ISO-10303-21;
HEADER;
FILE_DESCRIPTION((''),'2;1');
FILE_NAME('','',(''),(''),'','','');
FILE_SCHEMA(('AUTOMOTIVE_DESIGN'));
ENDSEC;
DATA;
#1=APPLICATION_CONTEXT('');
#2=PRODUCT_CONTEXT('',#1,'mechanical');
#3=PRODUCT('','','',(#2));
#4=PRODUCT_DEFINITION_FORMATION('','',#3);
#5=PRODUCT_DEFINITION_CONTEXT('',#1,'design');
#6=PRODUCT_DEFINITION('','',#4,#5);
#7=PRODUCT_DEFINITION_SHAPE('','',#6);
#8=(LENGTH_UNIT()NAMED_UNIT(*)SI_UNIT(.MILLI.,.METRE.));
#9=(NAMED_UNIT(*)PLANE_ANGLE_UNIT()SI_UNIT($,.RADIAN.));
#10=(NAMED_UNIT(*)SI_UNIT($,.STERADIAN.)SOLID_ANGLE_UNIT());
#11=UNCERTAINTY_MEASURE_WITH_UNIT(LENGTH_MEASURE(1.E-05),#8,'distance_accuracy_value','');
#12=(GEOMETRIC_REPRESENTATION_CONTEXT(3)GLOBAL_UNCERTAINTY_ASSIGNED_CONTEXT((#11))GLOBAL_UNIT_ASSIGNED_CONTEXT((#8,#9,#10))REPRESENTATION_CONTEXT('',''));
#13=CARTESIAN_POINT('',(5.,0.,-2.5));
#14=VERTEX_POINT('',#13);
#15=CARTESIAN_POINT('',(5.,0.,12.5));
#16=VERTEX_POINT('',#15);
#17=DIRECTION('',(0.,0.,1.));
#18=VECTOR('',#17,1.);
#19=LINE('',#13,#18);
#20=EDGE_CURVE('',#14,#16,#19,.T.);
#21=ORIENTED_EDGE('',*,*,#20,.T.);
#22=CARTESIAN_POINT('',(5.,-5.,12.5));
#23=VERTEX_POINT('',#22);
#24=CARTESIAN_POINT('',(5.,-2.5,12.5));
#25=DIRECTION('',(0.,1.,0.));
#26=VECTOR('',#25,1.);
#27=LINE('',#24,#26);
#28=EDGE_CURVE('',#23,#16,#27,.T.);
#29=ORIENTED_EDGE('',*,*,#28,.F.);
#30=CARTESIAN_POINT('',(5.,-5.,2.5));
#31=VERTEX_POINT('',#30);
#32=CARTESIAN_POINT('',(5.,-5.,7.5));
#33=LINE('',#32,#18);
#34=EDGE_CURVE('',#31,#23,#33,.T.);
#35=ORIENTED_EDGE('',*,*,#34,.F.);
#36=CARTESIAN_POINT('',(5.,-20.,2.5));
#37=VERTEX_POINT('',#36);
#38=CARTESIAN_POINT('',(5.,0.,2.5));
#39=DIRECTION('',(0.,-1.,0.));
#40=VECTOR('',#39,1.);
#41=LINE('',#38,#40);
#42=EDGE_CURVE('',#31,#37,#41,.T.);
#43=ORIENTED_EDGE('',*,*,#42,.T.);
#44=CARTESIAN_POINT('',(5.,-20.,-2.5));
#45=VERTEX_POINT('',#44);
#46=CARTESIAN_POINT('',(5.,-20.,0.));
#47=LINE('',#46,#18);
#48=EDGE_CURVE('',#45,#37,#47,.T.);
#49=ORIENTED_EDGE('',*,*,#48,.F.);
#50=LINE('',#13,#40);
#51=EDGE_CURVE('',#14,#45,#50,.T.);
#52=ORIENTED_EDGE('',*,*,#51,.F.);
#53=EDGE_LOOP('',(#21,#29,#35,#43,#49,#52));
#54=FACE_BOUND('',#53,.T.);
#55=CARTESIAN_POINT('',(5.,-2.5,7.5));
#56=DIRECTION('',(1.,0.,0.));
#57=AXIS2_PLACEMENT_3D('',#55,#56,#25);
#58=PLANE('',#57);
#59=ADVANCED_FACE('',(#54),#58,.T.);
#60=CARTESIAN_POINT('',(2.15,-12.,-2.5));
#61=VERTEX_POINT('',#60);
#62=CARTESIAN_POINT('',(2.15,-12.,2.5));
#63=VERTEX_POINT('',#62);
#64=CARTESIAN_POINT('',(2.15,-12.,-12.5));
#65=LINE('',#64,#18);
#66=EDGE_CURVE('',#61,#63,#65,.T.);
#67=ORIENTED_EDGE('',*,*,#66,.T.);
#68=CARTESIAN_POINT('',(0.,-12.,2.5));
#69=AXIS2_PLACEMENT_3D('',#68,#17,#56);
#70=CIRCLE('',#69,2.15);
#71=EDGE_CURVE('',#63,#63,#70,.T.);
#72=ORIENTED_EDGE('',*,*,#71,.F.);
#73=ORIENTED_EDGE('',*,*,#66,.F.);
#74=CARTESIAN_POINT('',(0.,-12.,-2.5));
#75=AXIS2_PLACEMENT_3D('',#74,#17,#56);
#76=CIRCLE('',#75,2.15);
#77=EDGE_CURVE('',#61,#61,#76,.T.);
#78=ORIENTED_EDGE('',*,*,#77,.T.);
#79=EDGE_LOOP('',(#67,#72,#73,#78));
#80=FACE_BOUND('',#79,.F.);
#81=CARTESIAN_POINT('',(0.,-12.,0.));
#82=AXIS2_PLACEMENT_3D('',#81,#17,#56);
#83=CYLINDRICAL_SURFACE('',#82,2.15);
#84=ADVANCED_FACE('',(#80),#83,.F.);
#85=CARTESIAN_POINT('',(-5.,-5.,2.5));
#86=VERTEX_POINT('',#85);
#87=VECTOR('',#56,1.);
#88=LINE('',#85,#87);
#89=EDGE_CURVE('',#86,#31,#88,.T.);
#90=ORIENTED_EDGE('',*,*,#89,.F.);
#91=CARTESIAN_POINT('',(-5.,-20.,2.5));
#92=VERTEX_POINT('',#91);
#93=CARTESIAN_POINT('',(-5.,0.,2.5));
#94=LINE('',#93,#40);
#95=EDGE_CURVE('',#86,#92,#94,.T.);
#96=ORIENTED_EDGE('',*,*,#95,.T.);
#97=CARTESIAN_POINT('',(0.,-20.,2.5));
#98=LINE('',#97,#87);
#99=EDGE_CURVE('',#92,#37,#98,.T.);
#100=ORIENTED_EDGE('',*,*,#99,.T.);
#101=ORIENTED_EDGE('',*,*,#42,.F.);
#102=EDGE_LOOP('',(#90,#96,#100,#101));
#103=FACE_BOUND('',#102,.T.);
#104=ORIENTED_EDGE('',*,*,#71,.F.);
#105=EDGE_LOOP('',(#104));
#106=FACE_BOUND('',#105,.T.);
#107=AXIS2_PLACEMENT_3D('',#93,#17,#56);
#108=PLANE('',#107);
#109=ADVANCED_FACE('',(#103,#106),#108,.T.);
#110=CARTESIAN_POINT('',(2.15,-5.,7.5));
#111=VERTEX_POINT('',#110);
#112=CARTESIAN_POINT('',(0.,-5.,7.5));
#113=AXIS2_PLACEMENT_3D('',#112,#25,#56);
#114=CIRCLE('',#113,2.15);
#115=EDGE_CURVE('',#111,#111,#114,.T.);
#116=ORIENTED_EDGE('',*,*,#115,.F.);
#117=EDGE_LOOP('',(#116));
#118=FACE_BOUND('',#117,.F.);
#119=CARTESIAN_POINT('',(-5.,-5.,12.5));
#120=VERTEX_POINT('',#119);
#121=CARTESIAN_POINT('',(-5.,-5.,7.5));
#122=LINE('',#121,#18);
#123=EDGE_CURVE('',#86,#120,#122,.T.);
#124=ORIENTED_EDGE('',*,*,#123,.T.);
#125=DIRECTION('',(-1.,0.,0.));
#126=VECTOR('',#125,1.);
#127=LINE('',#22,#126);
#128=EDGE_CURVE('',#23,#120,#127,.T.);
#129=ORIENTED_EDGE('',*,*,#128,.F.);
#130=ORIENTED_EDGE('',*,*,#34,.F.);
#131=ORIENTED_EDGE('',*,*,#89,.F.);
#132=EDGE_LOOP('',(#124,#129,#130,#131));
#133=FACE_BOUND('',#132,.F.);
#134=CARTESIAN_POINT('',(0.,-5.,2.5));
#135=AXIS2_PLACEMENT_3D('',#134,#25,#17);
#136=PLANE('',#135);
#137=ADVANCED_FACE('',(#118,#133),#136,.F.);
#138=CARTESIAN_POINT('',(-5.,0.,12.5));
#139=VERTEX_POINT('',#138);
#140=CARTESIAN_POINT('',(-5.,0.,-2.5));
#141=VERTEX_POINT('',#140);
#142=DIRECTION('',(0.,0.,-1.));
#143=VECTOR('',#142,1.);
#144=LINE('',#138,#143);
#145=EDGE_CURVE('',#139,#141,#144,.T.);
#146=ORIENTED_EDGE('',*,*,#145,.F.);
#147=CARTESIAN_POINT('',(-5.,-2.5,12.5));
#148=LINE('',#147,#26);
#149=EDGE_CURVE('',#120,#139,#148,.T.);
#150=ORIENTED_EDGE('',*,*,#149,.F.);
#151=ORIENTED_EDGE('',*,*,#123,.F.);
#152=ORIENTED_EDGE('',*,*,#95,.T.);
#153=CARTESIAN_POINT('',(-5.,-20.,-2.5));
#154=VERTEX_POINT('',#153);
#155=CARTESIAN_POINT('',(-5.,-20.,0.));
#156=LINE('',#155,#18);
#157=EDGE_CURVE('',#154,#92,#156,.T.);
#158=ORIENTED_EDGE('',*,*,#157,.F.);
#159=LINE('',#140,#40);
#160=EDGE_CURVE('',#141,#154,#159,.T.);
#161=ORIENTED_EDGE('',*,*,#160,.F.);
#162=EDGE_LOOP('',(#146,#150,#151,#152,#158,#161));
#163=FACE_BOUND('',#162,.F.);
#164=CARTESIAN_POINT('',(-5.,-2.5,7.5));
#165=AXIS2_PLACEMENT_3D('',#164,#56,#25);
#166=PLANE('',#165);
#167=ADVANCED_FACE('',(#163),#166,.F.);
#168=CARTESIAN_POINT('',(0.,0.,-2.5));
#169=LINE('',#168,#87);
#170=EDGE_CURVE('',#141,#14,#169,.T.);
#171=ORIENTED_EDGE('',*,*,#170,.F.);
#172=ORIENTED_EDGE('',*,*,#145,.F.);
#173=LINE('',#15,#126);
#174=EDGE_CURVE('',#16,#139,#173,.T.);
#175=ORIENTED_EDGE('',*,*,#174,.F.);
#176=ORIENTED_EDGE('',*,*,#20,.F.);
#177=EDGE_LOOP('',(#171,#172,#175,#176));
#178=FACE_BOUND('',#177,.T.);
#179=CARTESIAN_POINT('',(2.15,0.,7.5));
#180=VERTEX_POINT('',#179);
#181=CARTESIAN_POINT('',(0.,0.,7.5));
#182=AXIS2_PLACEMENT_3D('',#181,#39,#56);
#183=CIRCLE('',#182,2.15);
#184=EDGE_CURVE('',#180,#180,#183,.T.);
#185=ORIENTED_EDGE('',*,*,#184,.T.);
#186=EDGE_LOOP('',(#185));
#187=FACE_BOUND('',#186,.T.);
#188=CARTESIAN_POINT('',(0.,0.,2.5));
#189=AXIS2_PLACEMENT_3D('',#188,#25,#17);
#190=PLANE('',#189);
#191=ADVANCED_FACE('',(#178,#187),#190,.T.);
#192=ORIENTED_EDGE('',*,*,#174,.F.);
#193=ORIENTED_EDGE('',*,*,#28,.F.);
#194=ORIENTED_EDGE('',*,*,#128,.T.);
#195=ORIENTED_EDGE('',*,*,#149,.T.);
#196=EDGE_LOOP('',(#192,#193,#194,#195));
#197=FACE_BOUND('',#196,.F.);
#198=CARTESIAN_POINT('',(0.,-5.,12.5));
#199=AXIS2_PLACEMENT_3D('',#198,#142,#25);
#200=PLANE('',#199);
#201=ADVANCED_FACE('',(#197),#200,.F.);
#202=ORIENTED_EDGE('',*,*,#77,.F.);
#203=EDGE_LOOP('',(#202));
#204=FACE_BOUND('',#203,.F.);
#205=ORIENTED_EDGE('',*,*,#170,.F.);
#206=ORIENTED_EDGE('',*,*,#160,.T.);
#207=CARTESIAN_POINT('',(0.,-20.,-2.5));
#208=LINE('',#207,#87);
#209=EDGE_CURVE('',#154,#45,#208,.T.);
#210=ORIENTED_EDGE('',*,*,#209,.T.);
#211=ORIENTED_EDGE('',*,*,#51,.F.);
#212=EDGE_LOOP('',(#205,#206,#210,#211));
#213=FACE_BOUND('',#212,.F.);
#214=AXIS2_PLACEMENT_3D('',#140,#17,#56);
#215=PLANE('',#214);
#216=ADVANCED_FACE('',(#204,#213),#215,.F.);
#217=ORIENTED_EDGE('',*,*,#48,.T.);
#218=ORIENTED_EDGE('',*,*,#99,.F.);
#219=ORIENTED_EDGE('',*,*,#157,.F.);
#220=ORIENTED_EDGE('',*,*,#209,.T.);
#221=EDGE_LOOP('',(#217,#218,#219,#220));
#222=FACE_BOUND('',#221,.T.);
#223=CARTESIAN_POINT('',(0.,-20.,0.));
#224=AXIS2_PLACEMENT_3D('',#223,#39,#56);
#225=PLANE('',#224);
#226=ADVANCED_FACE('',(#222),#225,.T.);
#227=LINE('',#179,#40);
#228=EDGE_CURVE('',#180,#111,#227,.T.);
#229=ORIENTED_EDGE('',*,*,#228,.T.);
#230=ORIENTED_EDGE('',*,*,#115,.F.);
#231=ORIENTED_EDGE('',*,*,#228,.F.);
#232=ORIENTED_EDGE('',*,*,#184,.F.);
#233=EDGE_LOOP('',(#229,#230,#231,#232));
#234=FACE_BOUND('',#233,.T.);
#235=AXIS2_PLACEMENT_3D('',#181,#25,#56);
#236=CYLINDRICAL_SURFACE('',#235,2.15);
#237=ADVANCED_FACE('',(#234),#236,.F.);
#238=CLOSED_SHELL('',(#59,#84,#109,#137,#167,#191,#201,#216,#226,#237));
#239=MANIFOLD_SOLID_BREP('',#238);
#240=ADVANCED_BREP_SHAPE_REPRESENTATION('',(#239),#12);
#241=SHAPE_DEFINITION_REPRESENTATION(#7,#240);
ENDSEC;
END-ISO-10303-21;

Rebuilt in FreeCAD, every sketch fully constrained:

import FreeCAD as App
import Part
import Sketcher
from FreeCAD import Vector
Q = App.Units.Quantity

doc = App.newDocument("Part")
params = doc.addObject("Spreadsheet::Sheet", "Params")
for row, (alias, value) in enumerate([
    ("sketch1_width", "10 mm"),
    ("sketch1_height", "5 mm"),
    ("pad1_length", "20 mm"),
    ("sketch2_width", "5 mm"),
    ("sketch2_height", "10 mm"),
    ("pad2_length", "10 mm"),
    ("sketch3_diameter", "4.3 mm"),
    ("pocket1_length", "25 mm"),
    ("sketch4_diameter", "4.3 mm"),
    ("pocket2_length", "5.1 mm"),
], start=1):
    params.set(f"A{row}", alias)
    params.set(f"B{row}", "=" + value)
    params.setAlias(f"B{row}", alias)

body = doc.addObject("PartDesign::Body", "Body")

sketch1 = body.newObject("Sketcher::SketchObject", "Sketch")
sketch1.AttachmentSupport = (doc.getObject("XZ_Plane"), [""])
sketch1.MapMode = "FlatFace"
sketch1.addGeometry(Part.LineSegment(Vector(-5, 2, 0), Vector(-5, -2, 0)), False)
sketch1.addGeometry(Part.LineSegment(Vector(-5, -2, 0), Vector(5, -2, 0)), False)
sketch1.addGeometry(Part.LineSegment(Vector(5, -2, 0), Vector(5, 2, 0)), False)
sketch1.addGeometry(Part.LineSegment(Vector(5, 2, 0), Vector(-5, 2, 0)), False)
sketch1.addConstraint(Sketcher.Constraint("Coincident", 0, 2, 1, 1))
sketch1.addConstraint(Sketcher.Constraint("Coincident", 1, 2, 2, 1))
sketch1.addConstraint(Sketcher.Constraint("Coincident", 2, 2, 3, 1))
sketch1.addConstraint(Sketcher.Constraint("Coincident", 3, 2, 0, 1))
sketch1.addConstraint(Sketcher.Constraint("Vertical", 0))
sketch1.addConstraint(Sketcher.Constraint("Horizontal", 1))
sketch1.addConstraint(Sketcher.Constraint("Vertical", 2))
sketch1.addConstraint(Sketcher.Constraint("Horizontal", 3))
sketch1.addConstraint(Sketcher.Constraint("Symmetric", 0, 2, 2, 2, -1, 1))
sketch1.addConstraint(Sketcher.Constraint("DistanceX", 1, 1, 1, 2, Q("10 mm")))
sketch1.addConstraint(Sketcher.Constraint("DistanceY", 0, 2, 0, 1, Q("5 mm")))
sketch1.setExpression("Constraints[9]", "Params.sketch1_width")
sketch1.setExpression("Constraints[10]", "Params.sketch1_height")
pad1 = body.newObject("PartDesign::Pad", "Pad")
pad1.Profile = sketch1
pad1.setExpression("Length", "Params.pad1_length")

sketch2 = body.newObject("Sketcher::SketchObject", "Sketch001")
sketch2.AttachmentSupport = (doc.getObject("YZ_Plane"), [""])
sketch2.MapMode = "FlatFace"
sketch2.addGeometry(Part.LineSegment(Vector(-5, 12, 0), Vector(-5, 2, 0)), False)
sketch2.addGeometry(Part.LineSegment(Vector(-5, 2, 0), Vector(0, 2, 0)), False)
sketch2.addGeometry(Part.LineSegment(Vector(0, 2, 0), Vector(0, 12, 0)), False)
sketch2.addGeometry(Part.LineSegment(Vector(0, 12, 0), Vector(-5, 12, 0)), False)
sketch2.addConstraint(Sketcher.Constraint("Coincident", 0, 2, 1, 1))
sketch2.addConstraint(Sketcher.Constraint("Coincident", 1, 2, 2, 1))
sketch2.addConstraint(Sketcher.Constraint("Coincident", 2, 2, 3, 1))
sketch2.addConstraint(Sketcher.Constraint("Coincident", 3, 2, 0, 1))
sketch2.addConstraint(Sketcher.Constraint("Vertical", 0))
sketch2.addConstraint(Sketcher.Constraint("Horizontal", 1))
sketch2.addConstraint(Sketcher.Constraint("Vertical", 2))
sketch2.addConstraint(Sketcher.Constraint("Horizontal", 3))
sketch2.addConstraint(Sketcher.Constraint("PointOnObject", 1, 2, -2))
sketch2.addConstraint(Sketcher.Constraint("DistanceX", 1, 1, 1, 2, Q("5 mm")))
sketch2.addConstraint(Sketcher.Constraint("DistanceY", 0, 2, 0, 1, Q("10 mm")))
sketch2.addConstraint(Sketcher.Constraint("DistanceY", -1, 1, 0, 2, Q("2.5 mm")))
sketch2.setExpression("Constraints[9]", "Params.sketch2_width")
sketch2.setExpression("Constraints[10]", "Params.sketch2_height")
pad2 = body.newObject("PartDesign::Pad", "Pad001")
pad2.Profile = sketch2
pad2.setExpression("Length", "Params.pad2_length")
pad2.Midplane = True

sketch3 = body.newObject("Sketcher::SketchObject", "Sketch002")
sketch3.AttachmentSupport = (doc.getObject("XY_Plane"), [""])
sketch3.MapMode = "FlatFace"
sketch3.addGeometry(Part.Circle(Vector(0, -12, 0), Vector(0, 0, 1), 2.1), False)
sketch3.addConstraint(Sketcher.Constraint("PointOnObject", 0, 3, -2))
sketch3.addConstraint(Sketcher.Constraint("Diameter", 0, Q("4.3 mm")))
sketch3.addConstraint(Sketcher.Constraint("DistanceY", 0, 3, -1, 1, Q("12 mm")))
sketch3.setExpression("Constraints[1]", "Params.sketch3_diameter")
pocket1 = body.newObject("PartDesign::Pocket", "Pocket")
pocket1.Profile = sketch3
pocket1.setExpression("Length", "Params.pocket1_length")
pocket1.Midplane = True

sketch4 = body.newObject("Sketcher::SketchObject", "Sketch003")
sketch4.AttachmentSupport = (doc.getObject("XZ_Plane"), [""])
sketch4.MapMode = "FlatFace"
sketch4.addGeometry(Part.Circle(Vector(0, 7.5, 0), Vector(0, 0, 1), 2.1), False)
sketch4.addConstraint(Sketcher.Constraint("PointOnObject", 0, 3, -2))
sketch4.addConstraint(Sketcher.Constraint("Diameter", 0, Q("4.3 mm")))
sketch4.addConstraint(Sketcher.Constraint("DistanceY", -1, 1, 0, 3, Q("7.5 mm")))
sketch4.setExpression("Constraints[1]", "Params.sketch4_diameter")
pocket2 = body.newObject("PartDesign::Pocket", "Pocket001")
pocket2.Profile = sketch4
pocket2.setExpression("Length", "Params.pocket2_length")
pocket2.Reversed = True

doc.recompute()
